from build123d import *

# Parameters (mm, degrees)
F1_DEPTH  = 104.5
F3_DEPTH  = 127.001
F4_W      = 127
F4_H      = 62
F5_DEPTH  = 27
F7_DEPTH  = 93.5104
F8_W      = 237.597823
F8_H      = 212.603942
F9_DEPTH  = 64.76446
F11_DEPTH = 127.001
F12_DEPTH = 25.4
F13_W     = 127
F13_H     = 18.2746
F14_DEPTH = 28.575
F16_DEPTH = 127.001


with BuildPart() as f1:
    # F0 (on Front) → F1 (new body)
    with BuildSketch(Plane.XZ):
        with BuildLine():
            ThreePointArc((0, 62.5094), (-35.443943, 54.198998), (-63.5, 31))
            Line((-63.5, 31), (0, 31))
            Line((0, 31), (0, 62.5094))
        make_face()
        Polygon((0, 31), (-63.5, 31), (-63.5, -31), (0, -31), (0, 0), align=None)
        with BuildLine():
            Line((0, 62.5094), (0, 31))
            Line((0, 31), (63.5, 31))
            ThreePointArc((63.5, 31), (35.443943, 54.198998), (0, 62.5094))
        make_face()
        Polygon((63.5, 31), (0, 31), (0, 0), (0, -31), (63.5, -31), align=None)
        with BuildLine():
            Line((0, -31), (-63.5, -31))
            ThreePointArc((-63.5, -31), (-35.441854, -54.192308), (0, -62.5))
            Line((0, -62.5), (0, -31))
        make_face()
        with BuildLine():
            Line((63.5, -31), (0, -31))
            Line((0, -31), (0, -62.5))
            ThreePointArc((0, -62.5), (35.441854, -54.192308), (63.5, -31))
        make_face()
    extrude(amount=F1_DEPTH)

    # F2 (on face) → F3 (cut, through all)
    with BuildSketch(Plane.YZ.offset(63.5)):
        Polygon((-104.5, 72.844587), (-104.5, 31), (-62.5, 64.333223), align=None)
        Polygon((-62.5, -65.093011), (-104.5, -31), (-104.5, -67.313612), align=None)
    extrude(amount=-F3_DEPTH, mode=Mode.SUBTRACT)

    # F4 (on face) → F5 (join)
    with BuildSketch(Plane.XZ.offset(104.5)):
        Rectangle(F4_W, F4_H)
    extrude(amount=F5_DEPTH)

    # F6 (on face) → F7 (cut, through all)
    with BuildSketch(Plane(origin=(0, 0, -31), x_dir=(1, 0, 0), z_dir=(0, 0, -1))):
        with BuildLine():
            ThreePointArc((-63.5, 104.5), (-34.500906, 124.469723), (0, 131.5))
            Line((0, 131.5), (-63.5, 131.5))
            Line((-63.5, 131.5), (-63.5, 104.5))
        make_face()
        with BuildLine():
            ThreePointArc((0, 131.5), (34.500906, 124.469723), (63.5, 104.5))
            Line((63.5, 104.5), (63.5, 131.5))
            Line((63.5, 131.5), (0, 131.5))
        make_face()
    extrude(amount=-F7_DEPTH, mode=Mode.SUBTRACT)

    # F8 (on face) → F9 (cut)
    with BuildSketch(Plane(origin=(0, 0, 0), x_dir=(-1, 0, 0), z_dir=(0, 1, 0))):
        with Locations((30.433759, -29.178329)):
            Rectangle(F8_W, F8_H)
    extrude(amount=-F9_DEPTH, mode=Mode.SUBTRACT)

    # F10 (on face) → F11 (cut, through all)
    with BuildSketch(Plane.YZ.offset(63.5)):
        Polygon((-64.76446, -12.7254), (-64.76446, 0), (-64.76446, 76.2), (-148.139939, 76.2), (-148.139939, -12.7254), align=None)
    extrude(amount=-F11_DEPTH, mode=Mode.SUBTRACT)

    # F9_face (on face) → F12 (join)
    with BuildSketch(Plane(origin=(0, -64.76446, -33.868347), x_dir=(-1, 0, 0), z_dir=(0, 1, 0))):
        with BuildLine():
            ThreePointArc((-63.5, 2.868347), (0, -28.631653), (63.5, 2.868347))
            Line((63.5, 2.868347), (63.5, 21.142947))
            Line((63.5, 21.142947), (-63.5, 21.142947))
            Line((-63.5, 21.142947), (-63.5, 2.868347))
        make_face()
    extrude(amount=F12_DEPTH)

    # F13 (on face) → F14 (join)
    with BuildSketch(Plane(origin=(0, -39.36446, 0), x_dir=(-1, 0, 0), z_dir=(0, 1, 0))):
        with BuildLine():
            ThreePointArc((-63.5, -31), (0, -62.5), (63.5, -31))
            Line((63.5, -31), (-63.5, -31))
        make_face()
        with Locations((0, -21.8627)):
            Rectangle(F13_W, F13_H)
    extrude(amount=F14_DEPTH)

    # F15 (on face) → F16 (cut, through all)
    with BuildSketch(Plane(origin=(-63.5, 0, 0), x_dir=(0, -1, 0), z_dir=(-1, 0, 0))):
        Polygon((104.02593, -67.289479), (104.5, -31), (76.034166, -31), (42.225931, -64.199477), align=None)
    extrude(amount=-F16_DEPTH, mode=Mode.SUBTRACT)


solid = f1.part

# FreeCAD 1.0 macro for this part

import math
import FreeCAD as App
import Part
import Sketcher

V = App.Vector
Q = App.Units.Quantity


def add_polygon(sketch, points):
    """Adds a closed chain of lines whose ends are joined by coincident constraints."""
    first, n = sketch.GeometryCount, len(points)
    for a, b in zip(points, points[1:] + points[:1]):
        sketch.addGeometry(Part.LineSegment(App.Vector(*a, 0), App.Vector(*b, 0)), False)
    for i in range(n):
        sketch.addConstraint(Sketcher.Constraint("Coincident", first + i, 2, first + (i + 1) % n, 1))

doc = App.newDocument("Part")
body = doc.addObject("PartDesign::Body", "Body")

# Sketch on XZ plane
sketch1 = body.newObject("Sketcher::SketchObject", "Sketch")
sketch1.AttachmentSupport = (doc.getObject("XZ_Plane"), [""])
sketch1.MapMode = "FlatFace"
sketch1.addGeometry([
    Part.ArcOfCircle(Part.Circle(V(0, -17, 0), V(0, 0, 1), 80), math.radians(90), math.radians(143)),  # 0
    Part.LineSegment(V(-64, 31, 0), V(-64, -31, 0)),  # 1
    Part.ArcOfCircle(Part.Circle(V(0, 17, 0), V(0, 0, 1), 80), math.radians(-143), math.radians(-90)),  # 2
    Part.ArcOfCircle(Part.Circle(V(0, 17, 0), V(0, 0, 1), 80), math.radians(-90), math.radians(-37)),  # 3
    Part.LineSegment(V(64, -31, 0), V(64, 31, 0)),  # 4
    Part.ArcOfCircle(Part.Circle(V(0, -17, 0), V(0, 0, 1), 80), math.radians(37), math.radians(90)),  # 5
], False)
sketch1.addConstraint([
    Sketcher.Constraint("Coincident", 0, 2, 1, 1),
    Sketcher.Constraint("Coincident", 1, 2, 2, 1),
    Sketcher.Constraint("Tangent", 2, 2, 3, 1),
    Sketcher.Constraint("Coincident", 3, 2, 4, 1),
    Sketcher.Constraint("Coincident", 4, 2, 5, 1),
    Sketcher.Constraint("Tangent", 5, 2, 0, 1),
    Sketcher.Constraint("Vertical", 1),
    Sketcher.Constraint("Vertical", 4),
    Sketcher.Constraint("Equal", 2, 3),
    Sketcher.Constraint("Equal", 0, 5),
    Sketcher.Constraint("Symmetric", 0, 2, 3, 2, -1, 1),
    Sketcher.Constraint("PointOnObject", 0, 3, -2),
    Sketcher.Constraint("PointOnObject", 2, 3, -2),
    Sketcher.Constraint("PointOnObject", 2, 2, -2),
    Sketcher.Constraint("PointOnObject", 5, 2, -2),
    Sketcher.Constraint("DistanceX", 0, 2, -1, 1, Q("2.5 in")),
    Sketcher.Constraint("DistanceY", -1, 1, 5, 2, Q("2.461 in")),
    Sketcher.Constraint("Radius", 2, Q("79.753971 mm")),
    Sketcher.Constraint("DistanceY", 1, 2, 1, 1, Q("62 mm")),
])
pad1 = body.newObject("PartDesign::Pad", "Pad")
pad1.Profile = sketch1
pad1.Length = 104.5

# Sketch on YZ plane
sketch2 = body.newObject("Sketcher::SketchObject", "Sketch001")
sketch2.AttachmentSupport = (doc.getObject("YZ_Plane"), [""])
sketch2.MapMode = "FlatFace"
sketch2.AttachmentOffset = App.Placement(V(0, 0, 2.5 * 25.4), App.Rotation())
add_polygon(sketch2, [(-104, 73), (-104, 31), (-62, 64)])  # lines 0-2
add_polygon(sketch2, [(-62, -65), (-104, -31), (-104, -67)])  # lines 3-5
sketch2.addConstraint([
    Sketcher.Constraint("Vertical", 0),
    Sketcher.Constraint("Vertical", 4),
    Sketcher.Constraint("Symmetric", 0, 2, 3, 2, -1),
    Sketcher.Constraint("Vertical", 1, 2, 5, 2),
    Sketcher.Constraint("DistanceX", 0, 2, -1, 1, Q("104.5 mm")),
    Sketcher.Constraint("DistanceY", -1, 1, 0, 2, Q("31 mm")),
    Sketcher.Constraint("DistanceX", 1, 2, -1, 1, Q("62.5 mm")),
    Sketcher.Constraint("DistanceY", 4, 2, 2, 2, Q("140.158199 mm")),
    Sketcher.Constraint("DistanceY", 4, 2, 5, 2, Q("2.220601 mm")),
    Sketcher.Constraint("DistanceY", 0, 2, 0, 1, Q("41.844587 mm")),
    Sketcher.Constraint("Distance", 1, Q("53.619994 mm")),
])
pocket1 = body.newObject("PartDesign::Pocket", "Pocket")
pocket1.Profile = sketch2
pocket1.Type = "ThroughAll"

# Sketch on XZ plane
sketch3 = body.newObject("Sketcher::SketchObject", "Sketch002")
sketch3.AttachmentSupport = (doc.getObject("XZ_Plane"), [""])
sketch3.MapMode = "FlatFace"
sketch3.AttachmentOffset = App.Placement(V(0, 0, 104.5), App.Rotation())
add_polygon(sketch3, [(-64, 31), (-64, -31), (64, -31), (64, 31)])  # lines 0-3
sketch3.addConstraint([
    Sketcher.Constraint("Vertical", 0),
    Sketcher.Constraint("Horizontal", 1),
    Sketcher.Constraint("Vertical", 2),
    Sketcher.Constraint("Horizontal", 3),
    Sketcher.Constraint("Symmetric", 0, 2, 2, 2, -1, 1),
    Sketcher.Constraint("DistanceX", 1, 1, 1, 2, Q("5 in")),
    Sketcher.Constraint("DistanceY", 0, 2, 0, 1, Q("62 mm")),
])
pad2 = body.newObject("PartDesign::Pad", "Pad001")
pad2.Profile = sketch3
pad2.Length = 27

# Sketch on XY plane
sketch4 = body.newObject("Sketcher::SketchObject", "Sketch003")
sketch4.AttachmentSupport = (doc.getObject("XY_Plane"), [""])
sketch4.MapMode = "FlatFace"
sketch4.AttachmentOffset = App.Placement(V(0, 0, -31), App.Rotation())
sketch4.addGeometry([
    Part.ArcOfCircle(Part.Circle(V(0, -43, 0), V(0, 0, 1), 88), math.radians(-136), math.radians(-90)),  # 0
    Part.LineSegment(V(0, -132, 0), V(-64, -132, 0)),  # 1
    Part.LineSegment(V(-64, -132, 0), V(-64, -104, 0)),  # 2
    Part.ArcOfCircle(Part.Circle(V(0, -43, 0), V(0, 0, 1), 88), math.radians(-90), math.radians(-44)),  # 3
    Part.LineSegment(V(64, -104, 0), V(64, -132, 0)),  # 4
    Part.LineSegment(V(64, -132, 0), V(0, -132, 0)),  # 5
], False)
sketch4.addConstraint([
    Sketcher.Constraint("Tangent", 0, 2, 1, 1),
    Sketcher.Constraint("Coincident", 1, 2, 2, 1),
    Sketcher.Constraint("Coincident", 2, 2, 0, 1),
    Sketcher.Constraint("Coincident", 3, 2, 4, 1),
    Sketcher.Constraint("Coincident", 4, 2, 5, 1),
    Sketcher.Constraint("Tangent", 5, 2, 3, 1),
    Sketcher.Constraint("Horizontal", 1),
    Sketcher.Constraint("Vertical", 2),
    Sketcher.Constraint("Vertical", 4),
    Sketcher.Constraint("Horizontal", 5),
    Sketcher.Constraint("Coincident", 3, 3, 0, 3),
    Sketcher.Constraint("Equal", 0, 3),
    Sketcher.Constraint("Symmetric", 2, 2, 3, 2, -2),
    Sketcher.Constraint("DistanceX", 1, 2, 1, 1, Q("2.5 in")),
    Sketcher.Constraint("DistanceY", 2, 1, 2, 2, Q("27 mm")),
    Sketcher.Constraint("DistanceY", 0, 2, -1, 1, Q("131.5 mm")),
])
pocket2 = body.newObject("PartDesign::Pocket", "Pocket001")
pocket2.Profile = sketch4
pocket2.Type = "ThroughAll"
pocket2.Reversed = True

# Sketch on XZ plane
sketch5 = body.newObject("Sketcher::SketchObject", "Sketch004")
sketch5.AttachmentSupport = (doc.getObject("XZ_Plane"), [""])
sketch5.MapMode = "FlatFace"
add_polygon(sketch5, [(88, 77), (88, -135), (-149, -135), (-149, 77)])  # lines 0-3
sketch5.addConstraint([
    Sketcher.Constraint("Vertical", 0),
    Sketcher.Constraint("Horizontal", 1),
    Sketcher.Constraint("Vertical", 2),
    Sketcher.Constraint("Horizontal", 3),
    Sketcher.Constraint("DistanceY", 0, 2, -1, 1, Q("135.4803 mm")),
    Sketcher.Constraint("DistanceX", 1, 2, 1, 1, Q("237.597823 mm")),
    Sketcher.Constraint("DistanceY", 0, 2, 0, 1, Q("212.603942 mm")),
    Sketcher.Constraint("DistanceX", 1, 2, -1, 1, Q("149.232671 mm")),
])
pocket3 = body.newObject("PartDesign::Pocket", "Pocket002")
pocket3.Profile = sketch5
pocket3.Length = 64.76446
pocket3.Reversed = True

# Sketch on YZ plane
sketch6 = body.newObject("Sketcher::SketchObject", "Sketch005")
sketch6.AttachmentSupport = (doc.getObject("YZ_Plane"), [""])
sketch6.MapMode = "FlatFace"
sketch6.AttachmentOffset = App.Placement(V(0, 0, 2.5 * 25.4), App.Rotation())
add_polygon(sketch6, [(-65, -13), (-65, 76), (-148, 76), (-148, -13)])  # lines 0-3
sketch6.addConstraint([
    Sketcher.Constraint("Vertical", 0),
    Sketcher.Constraint("Horizontal", 1),
    Sketcher.Constraint("Vertical", 2),
    Sketcher.Constraint("Horizontal", 3),
    Sketcher.Constraint("DistanceY", -1, 1, 0, 2, Q("3 in")),
    Sketcher.Constraint("DistanceY", 0, 1, 0, 2, Q("3.501 in")),
    Sketcher.Constraint("DistanceX", 1, 2, 1, 1, Q("83.375479 mm")),
    Sketcher.Constraint("DistanceX", 0, 2, -1, 1, Q("64.76446 mm")),
])
pocket4 = body.newObject("PartDesign::Pocket", "Pocket003")
pocket4.Profile = sketch6
pocket4.Type = "ThroughAll"

# Sketch on XZ plane
sketch7 = body.newObject("Sketcher::SketchObject", "Sketch006")
sketch7.AttachmentSupport = (doc.getObject("XZ_Plane"), [""])
sketch7.MapMode = "FlatFace"
sketch7.AttachmentOffset = App.Placement(V(0, 0, 64.76446), App.Rotation())
sketch7.addGeometry([
    Part.ArcOfCircle(Part.Circle(V(0, 17, 0), V(0, 0, 1), 80), math.radians(-143), math.radians(-37)),
    Part.LineSegment(V(-64, -31, 0), V(-64, -13, 0)),
    Part.LineSegment(V(-64, -13, 0), V(64, -13, 0)),
    Part.LineSegment(V(64, -13, 0), V(64, -31, 0)),
], False)
sketch7.addConstraint([
    Sketcher.Constraint("Coincident", 0, 1, 1, 1),
    Sketcher.Constraint("Coincident", 1, 2, 2, 1),
    Sketcher.Constraint("Coincident", 2, 2, 3, 1),
    Sketcher.Constraint("Coincident", 3, 2, 0, 2),
    Sketcher.Constraint("Vertical", 1),
    Sketcher.Constraint("Horizontal", 2),
    Sketcher.Constraint("Vertical", 3),
    Sketcher.Constraint("Symmetric", 0, 1, 3, 2, -2),
    Sketcher.Constraint("DistanceX", 2, 1, 2, 2, Q("5 in")),
    Sketcher.Constraint("DistanceY", 1, 2, -1, 1, Q("0.501 in")),
    Sketcher.Constraint("Radius", 0, Q("79.753968 mm")),
    Sketcher.Constraint("DistanceY", 1, 1, 1, 2, Q("18.2746 mm")),
])
pad3 = body.newObject("PartDesign::Pad", "Pad002")
pad3.Profile = sketch7
pad3.Length = Q("1 in")
pad3.Reversed = True

# Sketch on XZ plane
sketch8 = body.newObject("Sketcher::SketchObject", "Sketch007")
sketch8.AttachmentSupport = (doc.getObject("XZ_Plane"), [""])
sketch8.MapMode = "FlatFace"
sketch8.AttachmentOffset = App.Placement(V(0, 0, 39.36446), App.Rotation())
sketch8.addGeometry([
    Part.ArcOfCircle(Part.Circle(V(0, 17, 0), V(0, 0, 1), 80), math.radians(-143), math.radians(-37)),
    Part.LineSegment(V(-64, -31, 0), V(-64, -13, 0)),
    Part.LineSegment(V(-64, -13, 0), V(64, -13, 0)),
    Part.LineSegment(V(64, -13, 0), V(64, -31, 0)),
], False)
sketch8.addConstraint([
    Sketcher.Constraint("Coincident", 0, 1, 1, 1),
    Sketcher.Constraint("Coincident", 1, 2, 2, 1),
    Sketcher.Constraint("Coincident", 2, 2, 3, 1),
    Sketcher.Constraint("Coincident", 3, 2, 0, 2),
    Sketcher.Constraint("Vertical", 1),
    Sketcher.Constraint("Horizontal", 2),
    Sketcher.Constraint("Vertical", 3),
    Sketcher.Constraint("Symmetric", 0, 1, 3, 2, -2),
    Sketcher.Constraint("DistanceX", 2, 1, 2, 2, Q("5 in")),
    Sketcher.Constraint("DistanceY", 1, 2, -1, 1, Q("0.501 in")),
    Sketcher.Constraint("Radius", 0, Q("79.753968 mm")),
    Sketcher.Constraint("DistanceY", 1, 1, 1, 2, Q("18.2746 mm")),
])
pad4 = body.newObject("PartDesign::Pad", "Pad003")
pad4.Profile = sketch8
pad4.Length = Q("1.125 in")
pad4.Reversed = True

# Sketch on YZ plane
sketch9 = body.newObject("Sketcher::SketchObject", "Sketch008")
sketch9.AttachmentSupport = (doc.getObject("YZ_Plane"), [""])
sketch9.MapMode = "FlatFace"
sketch9.AttachmentOffset = App.Placement(V(0, 0, -2.5 * 25.4), App.Rotation())
add_polygon(sketch9, [(-104, -67), (-104, -31), (-76, -31), (-42, -64)])  # lines 0-3
sketch9.addConstraint([
    Sketcher.Constraint("Horizontal", 1),
    Sketcher.Constraint("Distance", 3, Q("61.877201 mm")),
    Sketcher.Constraint("DistanceX", 0, 2, -1, 1, Q("104.5 mm")),
    Sketcher.Constraint("DistanceY", 0, 2, -1, 1, Q("31 mm")),
    Sketcher.Constraint("DistanceX", 3, 2, 2, 2, Q("61.799999 mm")),
    Sketcher.Constraint("DistanceX", 1, 1, 1, 2, Q("28.465834 mm")),
    Sketcher.Constraint("DistanceX", 2, 2, -1, 1, Q("42.225931 mm")),
    Sketcher.Constraint("DistanceY", 3, 2, -1, 1, Q("67.289479 mm")),
])
pocket5 = body.newObject("PartDesign::Pocket", "Pocket004")
pocket5.Profile = sketch9
pocket5.Type = "ThroughAll"
pocket5.Reversed = True

doc.recompute()
